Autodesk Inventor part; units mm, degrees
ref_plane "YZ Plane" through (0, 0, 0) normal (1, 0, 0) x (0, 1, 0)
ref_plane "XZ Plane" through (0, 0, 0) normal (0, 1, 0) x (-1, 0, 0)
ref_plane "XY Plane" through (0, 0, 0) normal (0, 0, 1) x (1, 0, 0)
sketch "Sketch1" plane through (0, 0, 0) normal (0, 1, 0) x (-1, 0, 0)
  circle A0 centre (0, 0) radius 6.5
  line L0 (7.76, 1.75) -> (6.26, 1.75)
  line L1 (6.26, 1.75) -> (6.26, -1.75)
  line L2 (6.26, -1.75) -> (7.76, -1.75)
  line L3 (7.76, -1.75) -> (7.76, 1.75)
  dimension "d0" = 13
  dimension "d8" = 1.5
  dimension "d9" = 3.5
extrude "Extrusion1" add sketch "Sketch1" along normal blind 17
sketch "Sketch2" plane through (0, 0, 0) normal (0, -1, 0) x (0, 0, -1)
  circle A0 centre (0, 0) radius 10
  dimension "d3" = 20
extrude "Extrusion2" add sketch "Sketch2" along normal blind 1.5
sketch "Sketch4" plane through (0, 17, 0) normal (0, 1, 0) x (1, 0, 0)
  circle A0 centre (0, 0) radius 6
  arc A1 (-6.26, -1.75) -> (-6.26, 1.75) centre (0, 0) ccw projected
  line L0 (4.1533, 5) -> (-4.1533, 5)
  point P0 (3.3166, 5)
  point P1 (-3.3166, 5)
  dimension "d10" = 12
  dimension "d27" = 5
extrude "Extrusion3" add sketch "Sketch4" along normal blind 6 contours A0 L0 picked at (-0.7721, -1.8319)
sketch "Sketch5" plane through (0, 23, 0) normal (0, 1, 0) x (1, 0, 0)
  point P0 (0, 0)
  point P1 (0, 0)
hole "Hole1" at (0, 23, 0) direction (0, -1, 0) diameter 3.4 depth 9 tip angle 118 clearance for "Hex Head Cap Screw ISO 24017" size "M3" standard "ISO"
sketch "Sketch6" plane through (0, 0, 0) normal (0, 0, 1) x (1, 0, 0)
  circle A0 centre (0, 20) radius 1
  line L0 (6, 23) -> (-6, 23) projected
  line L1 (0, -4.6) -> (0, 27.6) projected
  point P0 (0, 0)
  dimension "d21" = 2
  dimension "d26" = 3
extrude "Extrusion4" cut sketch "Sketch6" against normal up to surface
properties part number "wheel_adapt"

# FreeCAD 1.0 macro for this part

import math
import FreeCAD as App
import Part
import Sketcher
Q = App.Units.Quantity

doc = App.newDocument("Part")
body = doc.addObject("PartDesign::Body", "Body")

# Sketch on XZ plane
sketch1 = doc.addObject("Sketcher::SketchObject", "Sketch")
body.addObject(sketch1)
sketch1.AttachmentSupport = (doc.XZ_Plane, [""])
sketch1.MapMode = "FlatFace"
sketch1.addGeometry(Part.LineSegment(App.Vector(-6.3, -1.8, 0), App.Vector(-7.8, -1.8, 0)), False)
sketch1.addGeometry(Part.LineSegment(App.Vector(-7.8, -1.8, 0), App.Vector(-7.8, 1.8, 0)), False)
sketch1.addGeometry(Part.LineSegment(App.Vector(-7.8, 1.8, 0), App.Vector(-6.3, 1.8, 0)), False)
sketch1.addGeometry(Part.ArcOfCircle(Part.Circle(App.Vector(0, 0, 0), App.Vector(0, 0, 1), 6.5), math.radians(-164), math.radians(164)), False)
sketch1.addConstraint(Sketcher.Constraint("Coincident", 0, 2, 1, 1))
sketch1.addConstraint(Sketcher.Constraint("Coincident", 1, 2, 2, 1))
sketch1.addConstraint(Sketcher.Constraint("Coincident", 2, 2, 3, 2))
sketch1.addConstraint(Sketcher.Constraint("Coincident", 3, 1, 0, 1))
sketch1.addConstraint(Sketcher.Constraint("Horizontal", 0))
sketch1.addConstraint(Sketcher.Constraint("Vertical", 1))
sketch1.addConstraint(Sketcher.Constraint("Horizontal", 2))
sketch1.addConstraint(Sketcher.Constraint("Coincident", 3, 3, -1, 1))
sketch1.addConstraint(Sketcher.Constraint("Vertical", 2, 2, 3, 1))
sketch1.addConstraint(Sketcher.Constraint("Radius", 3, Q("6.5 mm")))
sketch1.addConstraint(Sketcher.Constraint("DistanceX", 0, 2, 0, 1, Q("1.5 mm")))
sketch1.addConstraint(Sketcher.Constraint("DistanceY", 1, 1, 1, 2, Q("3.5 mm")))
pad1 = doc.addObject("PartDesign::Pad", "Pad")
body.addObject(pad1)
pad1.Profile = sketch1
pad1.Length = 17
pad1.Reversed = True

# Sketch on XZ plane
sketch2 = doc.addObject("Sketcher::SketchObject", "Sketch001")
body.addObject(sketch2)
sketch2.AttachmentSupport = (doc.XZ_Plane, [""])
sketch2.MapMode = "FlatFace"
sketch2.addGeometry(Part.Circle(App.Vector(0, 0, 0), App.Vector(0, 0, 1), 10), False)
sketch2.addConstraint(Sketcher.Constraint("Coincident", 0, 3, -1, 1))
sketch2.addConstraint(Sketcher.Constraint("Diameter", 0, Q("20 mm")))
pad2 = doc.addObject("PartDesign::Pad", "Pad001")
body.addObject(pad2)
pad2.Profile = sketch2
pad2.Length = 1.5

# Sketch on XZ plane
sketch3 = doc.addObject("Sketcher::SketchObject", "Sketch002")
body.addObject(sketch3)
sketch3.AttachmentSupport = (doc.XZ_Plane, [""])
sketch3.MapMode = "FlatFace"
sketch3.AttachmentOffset = App.Placement(App.Vector(0, 0, -17), App.Rotation())
sketch3.addGeometry(Part.ArcOfCircle(Part.Circle(App.Vector(0, 0, 0), App.Vector(0, 0, 1), 6), math.radians(-56), math.radians(236)), False)
sketch3.addGeometry(Part.LineSegment(App.Vector(3, -5, 0), App.Vector(-3, -5, 0)), False)
sketch3.addConstraint(Sketcher.Constraint("Coincident", 0, 1, 1, 1))
sketch3.addConstraint(Sketcher.Constraint("Coincident", 1, 2, 0, 2))
sketch3.addConstraint(Sketcher.Constraint("Horizontal", 1))
sketch3.addConstraint(Sketcher.Constraint("Coincident", 0, 3, -1, 1))
sketch3.addConstraint(Sketcher.Constraint("Radius", 0, Q("6 mm")))
sketch3.addConstraint(Sketcher.Constraint("DistanceY", 0, 1, -1, 1, Q("5 mm")))
pad3 = doc.addObject("PartDesign::Pad", "Pad002")
body.addObject(pad3)
pad3.Profile = sketch3
pad3.Length = 6
pad3.Reversed = True

# Sketch on XZ plane
sketch4 = doc.addObject("Sketcher::SketchObject", "Sketch003")
body.addObject(sketch4)
sketch4.AttachmentSupport = (doc.XZ_Plane, [""])
sketch4.MapMode = "FlatFace"
sketch4.AttachmentOffset = App.Placement(App.Vector(0, 0, -23), App.Rotation())
sketch4.addGeometry(Part.Circle(App.Vector(0, 0, 0), App.Vector(0, 0, 1), 1.7), False)
sketch4.addConstraint(Sketcher.Constraint("Coincident", 0, 3, -1, 1))
sketch4.addConstraint(Sketcher.Constraint("Diameter", 0, Q("3.4 mm")))
doc.recompute()
hole = doc.addObject("PartDesign::Hole", "Hole")
body.addObject(hole)
hole.Profile = sketch4
hole.ThreadType = "None"
hole.Diameter = 3.4
hole.DepthType = "Dimension"
hole.Depth = 9
hole.DrillPoint = "Angled"
hole.DrillPointAngle = 118
hole.Reversed = True

# Sketch on XY plane
sketch5 = doc.addObject("Sketcher::SketchObject", "Sketch004")
body.addObject(sketch5)
sketch5.AttachmentSupport = (doc.XY_Plane, [""])
sketch5.MapMode = "FlatFace"
sketch5.addGeometry(Part.Circle(App.Vector(0, 20, 0), App.Vector(0, 0, 1), 1), False)
sketch5.addConstraint(Sketcher.Constraint("PointOnObject", 0, 3, -2))
sketch5.addConstraint(Sketcher.Constraint("Diameter", 0, Q("2 mm")))
sketch5.addConstraint(Sketcher.Constraint("DistanceY", -1, 1, 0, 3, Q("20 mm")))
pocket1 = doc.addObject("PartDesign::Pocket", "Pocket")
body.addObject(pocket1)
pocket1.Profile = sketch5
pocket1.Length = 5

doc.recompute()
